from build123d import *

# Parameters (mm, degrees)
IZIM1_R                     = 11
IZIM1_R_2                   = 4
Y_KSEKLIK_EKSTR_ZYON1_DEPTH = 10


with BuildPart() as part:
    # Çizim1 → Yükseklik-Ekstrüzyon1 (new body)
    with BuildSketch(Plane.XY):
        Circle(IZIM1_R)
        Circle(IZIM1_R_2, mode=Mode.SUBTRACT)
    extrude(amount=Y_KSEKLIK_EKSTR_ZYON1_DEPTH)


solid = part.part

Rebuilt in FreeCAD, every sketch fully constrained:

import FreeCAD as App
import Part
import Sketcher

doc = App.newDocument("Part")
body = doc.addObject("PartDesign::Body", "Body")

# Sketch on XY plane
sketch1 = body.newObject("Sketcher::SketchObject", "Sketch")
sketch1.AttachmentSupport = (doc.getObject("XY_Plane"), [""])
sketch1.MapMode = "FlatFace"
sketch1.addGeometry(Part.Circle(App.Vector(0, 0, 0), App.Vector(0, 0, 1), 11), False)
sketch1.addGeometry(Part.Circle(App.Vector(0, 0, 0), App.Vector(0, 0, 1), 4), False)
sketch1.addConstraint(Sketcher.Constraint("Coincident", 0, 3, -1, 1))
sketch1.addConstraint(Sketcher.Constraint("Coincident", 1, 3, -1, 1))
sketch1.addConstraint(Sketcher.Constraint("Diameter", 0, 22.0))
sketch1.addConstraint(Sketcher.Constraint("Diameter", 1, 8.0))
pad1 = body.newObject("PartDesign::Pad", "Pad")
pad1.Profile = sketch1
pad1.Length = 10

doc.recompute()
